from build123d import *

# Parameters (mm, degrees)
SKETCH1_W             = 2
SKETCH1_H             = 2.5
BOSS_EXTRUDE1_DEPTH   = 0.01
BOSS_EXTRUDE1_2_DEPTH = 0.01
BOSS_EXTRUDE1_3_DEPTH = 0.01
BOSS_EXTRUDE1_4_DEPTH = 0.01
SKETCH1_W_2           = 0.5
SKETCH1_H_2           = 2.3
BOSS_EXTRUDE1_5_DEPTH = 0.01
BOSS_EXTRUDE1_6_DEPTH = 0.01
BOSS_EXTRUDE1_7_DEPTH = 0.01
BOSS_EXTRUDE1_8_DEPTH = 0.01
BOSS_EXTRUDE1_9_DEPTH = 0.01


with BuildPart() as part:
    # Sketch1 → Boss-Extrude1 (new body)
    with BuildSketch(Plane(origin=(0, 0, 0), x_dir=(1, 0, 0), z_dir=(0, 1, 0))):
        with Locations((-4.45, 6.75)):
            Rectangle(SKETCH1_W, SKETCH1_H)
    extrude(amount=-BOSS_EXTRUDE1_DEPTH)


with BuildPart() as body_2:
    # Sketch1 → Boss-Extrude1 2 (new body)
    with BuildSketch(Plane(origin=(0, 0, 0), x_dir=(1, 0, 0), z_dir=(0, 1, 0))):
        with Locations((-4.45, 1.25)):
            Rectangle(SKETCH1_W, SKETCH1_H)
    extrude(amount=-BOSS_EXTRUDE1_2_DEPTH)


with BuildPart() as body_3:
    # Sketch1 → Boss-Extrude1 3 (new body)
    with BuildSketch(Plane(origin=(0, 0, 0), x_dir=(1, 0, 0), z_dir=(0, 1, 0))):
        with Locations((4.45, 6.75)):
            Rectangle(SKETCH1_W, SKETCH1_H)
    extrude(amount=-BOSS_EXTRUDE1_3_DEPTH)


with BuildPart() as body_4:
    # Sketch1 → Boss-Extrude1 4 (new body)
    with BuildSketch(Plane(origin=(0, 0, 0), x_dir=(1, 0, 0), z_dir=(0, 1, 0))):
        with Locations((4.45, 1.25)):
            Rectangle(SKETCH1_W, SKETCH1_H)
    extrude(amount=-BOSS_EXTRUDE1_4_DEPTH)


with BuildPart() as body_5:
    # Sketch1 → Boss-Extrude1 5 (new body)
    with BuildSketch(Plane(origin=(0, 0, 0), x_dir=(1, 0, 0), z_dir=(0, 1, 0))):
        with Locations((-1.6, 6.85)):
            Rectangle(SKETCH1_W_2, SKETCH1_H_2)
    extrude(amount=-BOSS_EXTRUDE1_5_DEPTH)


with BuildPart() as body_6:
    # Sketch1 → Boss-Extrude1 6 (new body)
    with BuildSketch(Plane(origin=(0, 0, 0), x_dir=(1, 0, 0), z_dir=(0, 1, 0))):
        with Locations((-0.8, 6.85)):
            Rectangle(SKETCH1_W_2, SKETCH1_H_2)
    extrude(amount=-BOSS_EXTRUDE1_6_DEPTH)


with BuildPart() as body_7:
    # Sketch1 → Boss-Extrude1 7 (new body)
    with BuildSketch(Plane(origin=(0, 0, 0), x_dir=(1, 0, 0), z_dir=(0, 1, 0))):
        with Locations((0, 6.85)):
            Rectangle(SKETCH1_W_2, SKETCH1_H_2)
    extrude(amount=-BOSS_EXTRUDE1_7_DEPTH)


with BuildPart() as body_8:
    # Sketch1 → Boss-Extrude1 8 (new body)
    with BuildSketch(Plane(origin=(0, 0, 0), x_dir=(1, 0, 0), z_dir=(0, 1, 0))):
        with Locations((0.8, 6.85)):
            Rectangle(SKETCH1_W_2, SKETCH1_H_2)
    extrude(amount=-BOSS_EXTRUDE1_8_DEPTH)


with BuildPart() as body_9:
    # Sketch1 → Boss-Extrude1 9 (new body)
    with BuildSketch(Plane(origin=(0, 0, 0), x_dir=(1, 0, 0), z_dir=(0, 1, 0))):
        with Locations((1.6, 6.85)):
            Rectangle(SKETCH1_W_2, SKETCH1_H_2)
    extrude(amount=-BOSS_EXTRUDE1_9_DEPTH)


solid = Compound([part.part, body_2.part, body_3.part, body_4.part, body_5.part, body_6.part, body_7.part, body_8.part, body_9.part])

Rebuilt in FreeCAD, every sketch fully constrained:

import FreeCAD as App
import Part
import Sketcher
from FreeCAD import Vector


def add_polygon(sketch, points):
    """Adds a closed chain of lines whose ends are joined by coincident constraints."""
    first, n = sketch.GeometryCount, len(points)
    for a, b in zip(points, points[1:] + points[:1]):
        sketch.addGeometry(Part.LineSegment(App.Vector(*a, 0), App.Vector(*b, 0)), False)
    for i in range(n):
        sketch.addConstraint(Sketcher.Constraint("Coincident", first + i, 2, first + (i + 1) % n, 1))

doc = App.newDocument("Part")
body = doc.addObject("PartDesign::Body", "Body")

sketch1 = doc.addObject("Sketcher::SketchObject", "Sketch")
body.addObject(sketch1)
sketch1.AttachmentSupport = (doc.XZ_Plane, [""])
sketch1.MapMode = "FlatFace"
add_polygon(sketch1, [(-5.5, -8), (-5.5, -5.5), (-3.5, -5.5), (-3.5, -8)])
sketch1.addConstraint(Sketcher.Constraint("Vertical", 0))
sketch1.addConstraint(Sketcher.Constraint("Horizontal", 1))
sketch1.addConstraint(Sketcher.Constraint("Vertical", 2))
sketch1.addConstraint(Sketcher.Constraint("Horizontal", 3))
sketch1.addConstraint(Sketcher.Constraint("DistanceX", 1, 1, 1, 2, 2.0))
sketch1.addConstraint(Sketcher.Constraint("DistanceY", 0, 1, 0, 2, 2.5))
sketch1.addConstraint(Sketcher.Constraint("DistanceY", 2, 2, -1, 1, 8.0))
sketch1.addConstraint(Sketcher.Constraint("DistanceX", 0, 2, -1, 1, 5.45))
pad1 = doc.addObject("PartDesign::Pad", "Pad")
body.addObject(pad1)
pad1.Profile = sketch1
pad1.Length = 0.01
body2 = doc.addObject("PartDesign::Body", "Body001")

sketch2 = doc.addObject("Sketcher::SketchObject", "Sketch001")
body2.addObject(sketch2)
sketch2.AttachmentSupport = (doc.getObject("XZ_Plane001"), [""])
sketch2.MapMode = "FlatFace"
add_polygon(sketch2, [(-5.5, -2.5), (-5.5, 0), (-3.5, 0), (-3.5, -2.5)])
sketch2.addConstraint(Sketcher.Constraint("Vertical", 0))
sketch2.addConstraint(Sketcher.Constraint("Horizontal", 1))
sketch2.addConstraint(Sketcher.Constraint("Vertical", 2))
sketch2.addConstraint(Sketcher.Constraint("Horizontal", 3))
sketch2.addConstraint(Sketcher.Constraint("PointOnObject", 0, 2, -1))
sketch2.addConstraint(Sketcher.Constraint("DistanceX", 1, 1, 1, 2, 2.0))
sketch2.addConstraint(Sketcher.Constraint("DistanceY", 0, 1, 0, 2, 2.5))
sketch2.addConstraint(Sketcher.Constraint("DistanceX", 0, 2, -1, 1, 5.45))
pad2 = doc.addObject("PartDesign::Pad", "Pad001")
body2.addObject(pad2)
pad2.Profile = sketch2
pad2.Length = 0.01
body3 = doc.addObject("PartDesign::Body", "Body002")

sketch3 = doc.addObject("Sketcher::SketchObject", "Sketch002")
body3.addObject(sketch3)
sketch3.AttachmentSupport = (doc.getObject("XZ_Plane002"), [""])
sketch3.MapMode = "FlatFace"
add_polygon(sketch3, [(3.5, -8), (3.5, -5.5), (5.5, -5.5), (5.5, -8)])
sketch3.addConstraint(Sketcher.Constraint("Vertical", 0))
sketch3.addConstraint(Sketcher.Constraint("Horizontal", 1))
sketch3.addConstraint(Sketcher.Constraint("Vertical", 2))
sketch3.addConstraint(Sketcher.Constraint("Horizontal", 3))
sketch3.addConstraint(Sketcher.Constraint("DistanceX", 1, 1, 1, 2, 2.0))
sketch3.addConstraint(Sketcher.Constraint("DistanceY", 0, 1, 0, 2, 2.5))
sketch3.addConstraint(Sketcher.Constraint("DistanceY", 2, 2, -1, 1, 8.0))
sketch3.addConstraint(Sketcher.Constraint("DistanceX", -1, 1, 0, 2, 3.45))
pad3 = doc.addObject("PartDesign::Pad", "Pad002")
body3.addObject(pad3)
pad3.Profile = sketch3
pad3.Length = 0.01
body4 = doc.addObject("PartDesign::Body", "Body003")

sketch4 = doc.addObject("Sketcher::SketchObject", "Sketch003")
body4.addObject(sketch4)
sketch4.AttachmentSupport = (doc.getObject("XZ_Plane003"), [""])
sketch4.MapMode = "FlatFace"
add_polygon(sketch4, [(3.5, -2.5), (3.5, 0), (5.5, 0), (5.5, -2.5)])
sketch4.addConstraint(Sketcher.Constraint("Vertical", 0))
sketch4.addConstraint(Sketcher.Constraint("Horizontal", 1))
sketch4.addConstraint(Sketcher.Constraint("Vertical", 2))
sketch4.addConstraint(Sketcher.Constraint("Horizontal", 3))
sketch4.addConstraint(Sketcher.Constraint("PointOnObject", 0, 2, -1))
sketch4.addConstraint(Sketcher.Constraint("DistanceX", 1, 1, 1, 2, 2.0))
sketch4.addConstraint(Sketcher.Constraint("DistanceY", 0, 1, 0, 2, 2.5))
sketch4.addConstraint(Sketcher.Constraint("DistanceX", -1, 1, 0, 2, 3.45))
pad4 = doc.addObject("PartDesign::Pad", "Pad003")
body4.addObject(pad4)
pad4.Profile = sketch4
pad4.Length = 0.01
body5 = doc.addObject("PartDesign::Body", "Body004")

sketch5 = doc.addObject("Sketcher::SketchObject", "Sketch004")
body5.addObject(sketch5)
sketch5.AttachmentSupport = (doc.getObject("XZ_Plane004"), [""])
sketch5.MapMode = "FlatFace"
add_polygon(sketch5, [(-1.9, -8), (-1.9, -5.7), (-1.4, -5.7), (-1.4, -8)])
sketch5.addConstraint(Sketcher.Constraint("Vertical", 0))
sketch5.addConstraint(Sketcher.Constraint("Horizontal", 1))
sketch5.addConstraint(Sketcher.Constraint("Vertical", 2))
sketch5.addConstraint(Sketcher.Constraint("Horizontal", 3))
sketch5.addConstraint(Sketcher.Constraint("DistanceX", 1, 1, 1, 2, 0.5))
sketch5.addConstraint(Sketcher.Constraint("DistanceY", 0, 1, 0, 2, 2.3))
sketch5.addConstraint(Sketcher.Constraint("DistanceY", 2, 2, -1, 1, 8.0))
sketch5.addConstraint(Sketcher.Constraint("DistanceX", 0, 2, -1, 1, 1.85))
pad5 = doc.addObject("PartDesign::Pad", "Pad004")
body5.addObject(pad5)
pad5.Profile = sketch5
pad5.Length = 0.01
body6 = doc.addObject("PartDesign::Body", "Body005")

sketch6 = doc.addObject("Sketcher::SketchObject", "Sketch005")
body6.addObject(sketch6)
sketch6.AttachmentSupport = (doc.getObject("XZ_Plane005"), [""])
sketch6.MapMode = "FlatFace"
add_polygon(sketch6, [(-1.1, -8), (-1.1, -5.7), (-0.6, -5.7), (-0.6, -8)])
sketch6.addConstraint(Sketcher.Constraint("Vertical", 0))
sketch6.addConstraint(Sketcher.Constraint("Horizontal", 1))
sketch6.addConstraint(Sketcher.Constraint("Vertical", 2))
sketch6.addConstraint(Sketcher.Constraint("Horizontal", 3))
sketch6.addConstraint(Sketcher.Constraint("DistanceX", 1, 1, 1, 2, 0.5))
sketch6.addConstraint(Sketcher.Constraint("DistanceY", 0, 1, 0, 2, 2.3))
sketch6.addConstraint(Sketcher.Constraint("DistanceY", 2, 2, -1, 1, 8.0))
sketch6.addConstraint(Sketcher.Constraint("DistanceX", 0, 2, -1, 1, 1.05))
pad6 = doc.addObject("PartDesign::Pad", "Pad005")
body6.addObject(pad6)
pad6.Profile = sketch6
pad6.Length = 0.01
body7 = doc.addObject("PartDesign::Body", "Body006")

sketch7 = doc.addObject("Sketcher::SketchObject", "Sketch006")
body7.addObject(sketch7)
sketch7.AttachmentSupport = (doc.getObject("XZ_Plane006"), [""])
sketch7.MapMode = "FlatFace"
add_polygon(sketch7, [(-0.2, -8), (-0.2, -5.7), (0.2, -5.7), (0.2, -8)])
sketch7.addConstraint(Sketcher.Constraint("Vertical", 0))
sketch7.addConstraint(Sketcher.Constraint("Horizontal", 1))
sketch7.addConstraint(Sketcher.Constraint("Vertical", 2))
sketch7.addConstraint(Sketcher.Constraint("Horizontal", 3))
sketch7.addConstraint(Sketcher.Constraint("DistanceX", 1, 1, 1, 2, 0.5))
sketch7.addConstraint(Sketcher.Constraint("DistanceY", 0, 1, 0, 2, 2.3))
sketch7.addConstraint(Sketcher.Constraint("DistanceY", 2, 2, -1, 1, 8.0))
sketch7.addConstraint(Sketcher.Constraint("DistanceX", 0, 2, -1, 1, 0.25))
pad7 = doc.addObject("PartDesign::Pad", "Pad006")
body7.addObject(pad7)
pad7.Profile = sketch7
pad7.Length = 0.01
body8 = doc.addObject("PartDesign::Body", "Body007")

sketch8 = doc.addObject("Sketcher::SketchObject", "Sketch007")
body8.addObject(sketch8)
sketch8.AttachmentSupport = (doc.getObject("XZ_Plane007"), [""])
sketch8.MapMode = "FlatFace"
add_polygon(sketch8, [(0.6, -8), (0.6, -5.7), (1.1, -5.7), (1.1, -8)])
sketch8.addConstraint(Sketcher.Constraint("Vertical", 0))
sketch8.addConstraint(Sketcher.Constraint("Horizontal", 1))
sketch8.addConstraint(Sketcher.Constraint("Vertical", 2))
sketch8.addConstraint(Sketcher.Constraint("Horizontal", 3))
sketch8.addConstraint(Sketcher.Constraint("DistanceX", 1, 1, 1, 2, 0.5))
sketch8.addConstraint(Sketcher.Constraint("DistanceY", 0, 1, 0, 2, 2.3))
sketch8.addConstraint(Sketcher.Constraint("DistanceY", 2, 2, -1, 1, 8.0))
sketch8.addConstraint(Sketcher.Constraint("DistanceX", -1, 1, 0, 2, 0.55))
pad8 = doc.addObject("PartDesign::Pad", "Pad007")
body8.addObject(pad8)
pad8.Profile = sketch8
pad8.Length = 0.01
body9 = doc.addObject("PartDesign::Body", "Body008")

sketch9 = doc.addObject("Sketcher::SketchObject", "Sketch008")
body9.addObject(sketch9)
sketch9.AttachmentSupport = (doc.getObject("XZ_Plane008"), [""])
sketch9.MapMode = "FlatFace"
add_polygon(sketch9, [(1.4, -8), (1.4, -5.7), (1.9, -5.7), (1.9, -8)])
sketch9.addConstraint(Sketcher.Constraint("Vertical", 0))
sketch9.addConstraint(Sketcher.Constraint("Horizontal", 1))
sketch9.addConstraint(Sketcher.Constraint("Vertical", 2))
sketch9.addConstraint(Sketcher.Constraint("Horizontal", 3))
sketch9.addConstraint(Sketcher.Constraint("DistanceX", 1, 1, 1, 2, 0.5))
sketch9.addConstraint(Sketcher.Constraint("DistanceY", 0, 1, 0, 2, 2.3))
sketch9.addConstraint(Sketcher.Constraint("DistanceY", 2, 2, -1, 1, 8.0))
sketch9.addConstraint(Sketcher.Constraint("DistanceX", -1, 1, 0, 2, 1.35))
pad9 = doc.addObject("PartDesign::Pad", "Pad008")
body9.addObject(pad9)
pad9.Profile = sketch9
pad9.Length = 0.01

doc.recompute()
